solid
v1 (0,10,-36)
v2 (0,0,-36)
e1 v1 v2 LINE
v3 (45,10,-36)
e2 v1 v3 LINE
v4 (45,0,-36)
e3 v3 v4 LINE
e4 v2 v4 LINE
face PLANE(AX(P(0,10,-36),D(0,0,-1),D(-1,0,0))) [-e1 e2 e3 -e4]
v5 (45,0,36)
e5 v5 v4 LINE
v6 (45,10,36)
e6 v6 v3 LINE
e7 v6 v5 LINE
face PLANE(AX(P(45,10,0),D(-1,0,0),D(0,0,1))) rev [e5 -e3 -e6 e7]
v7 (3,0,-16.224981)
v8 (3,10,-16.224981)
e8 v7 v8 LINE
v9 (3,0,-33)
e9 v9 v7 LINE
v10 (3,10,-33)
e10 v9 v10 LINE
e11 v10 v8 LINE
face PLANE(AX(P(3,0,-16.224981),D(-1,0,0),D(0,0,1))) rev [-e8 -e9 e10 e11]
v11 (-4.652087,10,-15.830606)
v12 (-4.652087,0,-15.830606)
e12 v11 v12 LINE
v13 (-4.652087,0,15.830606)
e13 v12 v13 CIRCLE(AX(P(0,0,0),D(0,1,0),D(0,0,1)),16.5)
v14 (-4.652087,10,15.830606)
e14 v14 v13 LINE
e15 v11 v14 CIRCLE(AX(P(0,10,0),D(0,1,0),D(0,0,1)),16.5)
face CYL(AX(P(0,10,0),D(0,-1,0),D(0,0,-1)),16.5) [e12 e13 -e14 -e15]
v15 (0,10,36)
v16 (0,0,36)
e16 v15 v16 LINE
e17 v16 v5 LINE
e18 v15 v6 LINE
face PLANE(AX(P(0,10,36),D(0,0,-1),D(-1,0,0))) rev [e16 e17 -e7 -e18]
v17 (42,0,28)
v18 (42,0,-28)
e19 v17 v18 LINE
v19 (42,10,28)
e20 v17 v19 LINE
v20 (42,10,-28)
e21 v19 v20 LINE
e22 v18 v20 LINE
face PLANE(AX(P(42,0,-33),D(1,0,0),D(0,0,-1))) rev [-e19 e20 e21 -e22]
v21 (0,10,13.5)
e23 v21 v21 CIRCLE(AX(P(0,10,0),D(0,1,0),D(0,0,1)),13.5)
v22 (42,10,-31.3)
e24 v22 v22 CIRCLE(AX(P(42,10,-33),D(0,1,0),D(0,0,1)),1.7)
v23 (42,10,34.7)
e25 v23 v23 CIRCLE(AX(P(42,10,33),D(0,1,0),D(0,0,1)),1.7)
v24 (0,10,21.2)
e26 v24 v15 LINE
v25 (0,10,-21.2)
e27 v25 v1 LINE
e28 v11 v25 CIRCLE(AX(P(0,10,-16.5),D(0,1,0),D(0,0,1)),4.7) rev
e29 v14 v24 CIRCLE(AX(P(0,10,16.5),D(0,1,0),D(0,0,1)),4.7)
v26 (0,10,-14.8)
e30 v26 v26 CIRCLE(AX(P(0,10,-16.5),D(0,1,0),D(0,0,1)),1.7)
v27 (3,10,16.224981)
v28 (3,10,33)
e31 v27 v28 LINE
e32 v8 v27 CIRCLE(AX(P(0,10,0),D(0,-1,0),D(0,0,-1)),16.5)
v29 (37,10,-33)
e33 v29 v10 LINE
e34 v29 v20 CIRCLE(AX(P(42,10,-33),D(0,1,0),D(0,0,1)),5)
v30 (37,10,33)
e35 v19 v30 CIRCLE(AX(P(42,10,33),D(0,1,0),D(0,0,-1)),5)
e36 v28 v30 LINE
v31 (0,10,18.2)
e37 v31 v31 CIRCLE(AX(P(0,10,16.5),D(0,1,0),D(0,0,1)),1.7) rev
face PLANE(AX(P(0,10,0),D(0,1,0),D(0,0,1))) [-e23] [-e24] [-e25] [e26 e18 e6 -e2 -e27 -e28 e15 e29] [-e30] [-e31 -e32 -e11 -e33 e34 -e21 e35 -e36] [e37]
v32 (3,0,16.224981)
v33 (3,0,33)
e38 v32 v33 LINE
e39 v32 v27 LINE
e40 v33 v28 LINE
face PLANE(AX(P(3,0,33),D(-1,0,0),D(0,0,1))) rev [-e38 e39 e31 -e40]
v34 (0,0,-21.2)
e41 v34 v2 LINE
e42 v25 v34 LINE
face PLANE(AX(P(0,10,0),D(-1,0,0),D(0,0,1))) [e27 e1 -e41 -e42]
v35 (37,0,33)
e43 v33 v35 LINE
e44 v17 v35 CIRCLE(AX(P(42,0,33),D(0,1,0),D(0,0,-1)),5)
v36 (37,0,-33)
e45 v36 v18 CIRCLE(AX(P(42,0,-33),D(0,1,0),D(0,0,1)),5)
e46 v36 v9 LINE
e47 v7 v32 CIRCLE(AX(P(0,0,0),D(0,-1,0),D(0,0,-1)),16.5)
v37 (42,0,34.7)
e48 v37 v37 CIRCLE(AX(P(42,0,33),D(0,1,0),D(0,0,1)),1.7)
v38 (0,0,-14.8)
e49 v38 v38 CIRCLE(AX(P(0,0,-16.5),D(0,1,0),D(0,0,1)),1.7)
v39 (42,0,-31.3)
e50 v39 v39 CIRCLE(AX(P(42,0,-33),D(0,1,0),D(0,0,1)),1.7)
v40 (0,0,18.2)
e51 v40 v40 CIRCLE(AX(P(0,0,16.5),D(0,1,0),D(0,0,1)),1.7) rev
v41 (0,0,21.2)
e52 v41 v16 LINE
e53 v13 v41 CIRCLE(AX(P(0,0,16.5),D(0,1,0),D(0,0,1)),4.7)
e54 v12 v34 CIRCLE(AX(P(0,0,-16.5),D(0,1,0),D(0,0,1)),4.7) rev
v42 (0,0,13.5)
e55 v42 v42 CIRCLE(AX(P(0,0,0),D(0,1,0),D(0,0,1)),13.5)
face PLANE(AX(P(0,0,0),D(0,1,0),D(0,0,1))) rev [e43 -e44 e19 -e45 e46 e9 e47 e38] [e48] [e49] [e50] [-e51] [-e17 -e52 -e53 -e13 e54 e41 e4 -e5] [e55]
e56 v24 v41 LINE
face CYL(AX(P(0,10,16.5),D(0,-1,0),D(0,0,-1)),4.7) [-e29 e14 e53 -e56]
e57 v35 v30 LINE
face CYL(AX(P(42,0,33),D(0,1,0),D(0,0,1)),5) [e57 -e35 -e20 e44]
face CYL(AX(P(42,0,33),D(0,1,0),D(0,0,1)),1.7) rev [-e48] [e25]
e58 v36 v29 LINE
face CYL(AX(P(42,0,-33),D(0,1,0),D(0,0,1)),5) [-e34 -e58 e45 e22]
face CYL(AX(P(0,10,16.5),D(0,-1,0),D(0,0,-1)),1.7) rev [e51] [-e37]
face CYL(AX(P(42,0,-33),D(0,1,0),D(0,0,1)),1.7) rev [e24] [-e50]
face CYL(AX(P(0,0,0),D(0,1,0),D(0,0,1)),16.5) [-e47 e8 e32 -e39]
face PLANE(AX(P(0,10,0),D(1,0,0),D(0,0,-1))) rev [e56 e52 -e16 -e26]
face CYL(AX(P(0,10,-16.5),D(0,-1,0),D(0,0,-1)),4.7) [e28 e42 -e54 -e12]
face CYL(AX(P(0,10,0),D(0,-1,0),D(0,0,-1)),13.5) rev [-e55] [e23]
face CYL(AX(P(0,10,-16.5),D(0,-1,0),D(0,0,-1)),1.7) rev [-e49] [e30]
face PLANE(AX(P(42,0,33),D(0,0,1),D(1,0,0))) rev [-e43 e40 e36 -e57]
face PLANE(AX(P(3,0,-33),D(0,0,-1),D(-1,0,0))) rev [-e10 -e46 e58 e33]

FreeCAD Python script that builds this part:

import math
import FreeCAD as App
import Part
import Sketcher

V = App.Vector
Q = App.Units.Quantity

doc = App.newDocument("Part")
params = doc.addObject("Spreadsheet::Sheet", "Params")
for row, (alias, value) in enumerate([
    ("sketch1_diameter", "27 mm"),
    ("sketch1_radius", "4.7 mm"),
    ("sketch1_radius2", "16.5 mm"),
    ("sketch1_radius3", "1.7 mm"),
    ("sketch1_width", "45 mm"),
    ("pad1_length", "10 mm"),
    ("sketch2_radius", "16.5 mm"),
    ("sketch2_width", "39 mm"),
    ("sketch2_height", "66 mm"),
    ("sketch3_radius", "5 mm"),
    ("pad2_length", "10 mm"),
    ("sketch4_diameter", "3.4 mm"),
], start=1):
    params.set(f"A{row}", alias)
    params.set(f"B{row}", "=" + value)
    params.setAlias(f"B{row}", alias)

body = doc.addObject("PartDesign::Body", "Body")

sketch1 = body.newObject("Sketcher::SketchObject", "Sketch")
sketch1.AttachmentSupport = (doc.getObject("XZ_Plane"), [""])
sketch1.MapMode = "FlatFace"
sketch1.addGeometry([
    Part.ArcOfCircle(Part.Circle(V(0, -16.5, 0), V(0, 0, 1), 4.7), math.radians(172), math.radians(270)),
    Part.ArcOfCircle(Part.Circle(V(0, 0, 0), V(0, 0, 1), 16.5), math.radians(106), math.radians(254)),
    Part.ArcOfCircle(Part.Circle(V(0, 16.5, 0), V(0, 0, 1), 4.7), math.radians(90), math.radians(188)),
    Part.LineSegment(V(0, 21.2, 0), V(0, 36, 0)),
    Part.LineSegment(V(0, 36, 0), V(45, 36, 0)),
    Part.LineSegment(V(45, 36, 0), V(45, -36, 0)),
    Part.LineSegment(V(45, -36, 0), V(0, -36, 0)),
    Part.LineSegment(V(0, -36, 0), V(0, -21.2, 0)),
    Part.ArcOfCircle(Part.Circle(V(0, -16.5, 0), V(0, 0, 1), 1.7), math.radians(177), math.radians(360)),
    Part.ArcOfCircle(Part.Circle(V(0, -16.5, 0), V(0, 0, 1), 1.7), math.radians(0), math.radians(2.95)),
    Part.ArcOfCircle(Part.Circle(V(0, -16.5, 0), V(0, 0, 1), 1.7), math.radians(3), math.radians(177)),
    Part.Circle(V(0, 0, 0), V(0, 0, 1), 13.5),
    Part.ArcOfCircle(Part.Circle(V(0, 16.5, 0), V(0, 0, 1), 1.7), math.radians(-177), math.radians(-3)),
    Part.ArcOfCircle(Part.Circle(V(0, 16.5, 0), V(0, 0, 1), 1.7), math.radians(-2.95), math.radians(0)),
    Part.ArcOfCircle(Part.Circle(V(0, 16.5, 0), V(0, 0, 1), 1.7), math.radians(0), math.radians(183)),
], False)
sketch1.addConstraint([
    Sketcher.Constraint("Coincident", 0, 1, 1, 2),
    Sketcher.Constraint("Coincident", 1, 1, 2, 2),
    Sketcher.Constraint("Coincident", 2, 1, 3, 1),
    Sketcher.Constraint("Coincident", 3, 2, 4, 1),
    Sketcher.Constraint("Coincident", 4, 2, 5, 1),
    Sketcher.Constraint("Coincident", 5, 2, 6, 1),
    Sketcher.Constraint("Coincident", 6, 2, 7, 1),
    Sketcher.Constraint("Coincident", 7, 2, 0, 2),
    Sketcher.Constraint("Tangent", 8, 2, 9, 1),
    Sketcher.Constraint("Tangent", 9, 2, 10, 1),
    Sketcher.Constraint("Tangent", 10, 2, 8, 1),
    Sketcher.Constraint("Tangent", 12, 2, 13, 1),
    Sketcher.Constraint("Tangent", 13, 2, 14, 1),
    Sketcher.Constraint("Tangent", 14, 2, 12, 1),
    Sketcher.Constraint("Vertical", 3),
    Sketcher.Constraint("Horizontal", 4),
    Sketcher.Constraint("Vertical", 5),
    Sketcher.Constraint("Horizontal", 6),
    Sketcher.Constraint("Vertical", 7),
    Sketcher.Constraint("Coincident", 1, 3, -1, 1),
    Sketcher.Constraint("Coincident", 11, 3, -1, 1),
    Sketcher.Constraint("Coincident", 8, 3, 0, 3),
    Sketcher.Constraint("Coincident", 12, 3, 2, 3),
    Sketcher.Constraint("Equal", 0, 2),
    Sketcher.Constraint("Equal", 10, 12),
    Sketcher.Constraint("Symmetric", 0, 3, 2, 3, -1, 1),
    Sketcher.Constraint("Symmetric", 3, 2, 6, 2, -1, 1),
    Sketcher.Constraint("Symmetric", 9, 2, 10, 2, -2),
    Sketcher.Constraint("PointOnObject", 2, 1, -2),
    Sketcher.Constraint("Horizontal", 10, 3, 8, 2),
    Sketcher.Constraint("Horizontal", 14, 3, 13, 2),
    Sketcher.Constraint("Horizontal", 12, 2, 14, 2),
    Sketcher.Constraint("Vertical", 9, 2, 12, 2),
    Sketcher.Constraint("Diameter", 11, Q("27 mm")),
    Sketcher.Constraint("Radius", 0, Q("4.7 mm")),
    Sketcher.Constraint("Radius", 1, Q("16.5 mm")),
    Sketcher.Constraint("Radius", 8, Q("1.7 mm")),
    Sketcher.Constraint("DistanceX", 4, 1, 4, 2, Q("45 mm")),
    Sketcher.Constraint("DistanceY", 5, 2, 5, 1, Q("72 mm")),
    Sketcher.Constraint("DistanceY", 3, 1, 3, 2, Q("14.8 mm")),
    Sketcher.Constraint("DistanceY", 10, 2, 0, 1, Q("0.581818 mm")),
])
sketch1.setExpression("Constraints[33]", "Params.sketch1_diameter")
sketch1.setExpression("Constraints[34]", "Params.sketch1_radius")
sketch1.setExpression("Constraints[35]", "Params.sketch1_radius2")
sketch1.setExpression("Constraints[36]", "Params.sketch1_radius3")
sketch1.setExpression("Constraints[37]", "Params.sketch1_width")
pad1 = body.newObject("PartDesign::Pad", "Pad")
pad1.Profile = sketch1
pad1.setExpression("Length", "Params.pad1_length")
pad1.Reversed = True

sketch2 = body.newObject("Sketcher::SketchObject", "Sketch001")
sketch2.AttachmentSupport = (doc.getObject("XZ_Plane"), [""])
sketch2.MapMode = "FlatFace"
sketch2.AttachmentOffset = App.Placement(V(0, 0, -10), App.Rotation())
sketch2.addGeometry([
    Part.LineSegment(V(3, -33, 0), V(3, -16, 0)),
    Part.ArcOfCircle(Part.Circle(V(0, 0, 0), V(0, 0, 1), 16), math.radians(-80), math.radians(80)),
    Part.LineSegment(V(3, 16, 0), V(3, 33, 0)),
    Part.LineSegment(V(3, 33, 0), V(42, 33, 0)),
    Part.LineSegment(V(42, 33, 0), V(42, -33, 0)),
    Part.LineSegment(V(42, -33, 0), V(3, -33, 0)),
], False)
sketch2.addConstraint([
    Sketcher.Constraint("Coincident", 0, 2, 1, 1),
    Sketcher.Constraint("Coincident", 1, 2, 2, 1),
    Sketcher.Constraint("Coincident", 2, 2, 3, 1),
    Sketcher.Constraint("Coincident", 3, 2, 4, 1),
    Sketcher.Constraint("Coincident", 4, 2, 5, 1),
    Sketcher.Constraint("Coincident", 5, 2, 0, 1),
    Sketcher.Constraint("Vertical", 0),
    Sketcher.Constraint("Vertical", 2),
    Sketcher.Constraint("Horizontal", 3),
    Sketcher.Constraint("Vertical", 4),
    Sketcher.Constraint("Horizontal", 5),
    Sketcher.Constraint("Coincident", 1, 3, -1, 1),
    Sketcher.Constraint("Symmetric", 2, 2, 5, 2, -1),
    Sketcher.Constraint("Radius", 1, Q("16.5 mm")),
    Sketcher.Constraint("DistanceX", 3, 1, 3, 2, Q("39 mm")),
    Sketcher.Constraint("DistanceY", 4, 2, 4, 1, Q("66 mm")),
    Sketcher.Constraint("DistanceX", -1, 1, 0, 2, Q("3 mm")),
])
sketch2.setExpression("Constraints[13]", "Params.sketch2_radius")
sketch2.setExpression("Constraints[14]", "Params.sketch2_width")
sketch2.setExpression("Constraints[15]", "Params.sketch2_height")
pocket1 = body.newObject("PartDesign::Pocket", "Pocket")
pocket1.Profile = sketch2
pocket1.Type = "ThroughAll"
pocket1.Reversed = True

sketch3 = body.newObject("Sketcher::SketchObject", "Sketch002")
sketch3.AttachmentSupport = (doc.getObject("XZ_Plane"), [""])
sketch3.MapMode = "FlatFace"
sketch3.AttachmentOffset = App.Placement(V(0, 0, -10), App.Rotation())
sketch3.addGeometry([
    Part.LineSegment(V(37, 33, 0), V(42, 33, 0)),
    Part.LineSegment(V(42, 33, 0), V(42, 28, 0)),
    Part.ArcOfCircle(Part.Circle(V(42, 33, 0), V(0, 0, 1), 5), math.radians(180), math.radians(270)),
    Part.LineSegment(V(42, -33, 0), V(37, -33, 0)),
    Part.ArcOfCircle(Part.Circle(V(42, -33, 0), V(0, 0, 1), 5), math.radians(90), math.radians(180)),
    Part.LineSegment(V(42, -28, 0), V(42, -33, 0)),
], False)
sketch3.addConstraint([
    Sketcher.Constraint("Coincident", 0, 2, 1, 1),
    Sketcher.Constraint("Coincident", 1, 2, 2, 2),
    Sketcher.Constraint("Coincident", 2, 1, 0, 1),
    Sketcher.Constraint("Coincident", 3, 2, 4, 2),
    Sketcher.Constraint("Coincident", 4, 1, 5, 1),
    Sketcher.Constraint("Coincident", 5, 2, 3, 1),
    Sketcher.Constraint("Horizontal", 0),
    Sketcher.Constraint("Vertical", 1),
    Sketcher.Constraint("Horizontal", 3),
    Sketcher.Constraint("Vertical", 5),
    Sketcher.Constraint("Coincident", 0, 2, 2, 3),
    Sketcher.Constraint("Coincident", 5, 2, 4, 3),
    Sketcher.Constraint("Equal", 2, 4),
    Sketcher.Constraint("Symmetric", 2, 3, 4, 3, -1),
    Sketcher.Constraint("Radius", 2, Q("5 mm")),
    Sketcher.Constraint("DistanceX", -1, 1, 2, 3, Q("42 mm")),
    Sketcher.Constraint("DistanceY", -1, 1, 2, 3, Q("33 mm")),
])
sketch3.setExpression("Constraints[14]", "Params.sketch3_radius")
pad2 = body.newObject("PartDesign::Pad", "Pad001")
pad2.Profile = sketch3
pad2.setExpression("Length", "Params.pad2_length")

sketch4 = body.newObject("Sketcher::SketchObject", "Sketch003")
sketch4.AttachmentSupport = (doc.getObject("XZ_Plane"), [""])
sketch4.MapMode = "FlatFace"
sketch4.AttachmentOffset = App.Placement(V(0, 0, -10), App.Rotation())
sketch4.addGeometry([
    Part.Circle(V(42, -33, 0), V(0, 0, 1), 1.7),
    Part.Circle(V(42, 33, 0), V(0, 0, 1), 1.7),
], False)
sketch4.addConstraint([
    Sketcher.Constraint("Equal", 0, 1),
    Sketcher.Constraint("Symmetric", 0, 3, 1, 3, -1),
    Sketcher.Constraint("Diameter", 0, Q("3.4 mm")),
    Sketcher.Constraint("DistanceX", -1, 1, 0, 3, Q("42 mm")),
    Sketcher.Constraint("DistanceY", 0, 3, -1, 1, Q("33 mm")),
])
sketch4.setExpression("Constraints[2]", "Params.sketch4_diameter")
pocket2 = body.newObject("PartDesign::Pocket", "Pocket001")
pocket2.Profile = sketch4
pocket2.Type = "ThroughAll"
pocket2.Reversed = True

doc.recompute()
